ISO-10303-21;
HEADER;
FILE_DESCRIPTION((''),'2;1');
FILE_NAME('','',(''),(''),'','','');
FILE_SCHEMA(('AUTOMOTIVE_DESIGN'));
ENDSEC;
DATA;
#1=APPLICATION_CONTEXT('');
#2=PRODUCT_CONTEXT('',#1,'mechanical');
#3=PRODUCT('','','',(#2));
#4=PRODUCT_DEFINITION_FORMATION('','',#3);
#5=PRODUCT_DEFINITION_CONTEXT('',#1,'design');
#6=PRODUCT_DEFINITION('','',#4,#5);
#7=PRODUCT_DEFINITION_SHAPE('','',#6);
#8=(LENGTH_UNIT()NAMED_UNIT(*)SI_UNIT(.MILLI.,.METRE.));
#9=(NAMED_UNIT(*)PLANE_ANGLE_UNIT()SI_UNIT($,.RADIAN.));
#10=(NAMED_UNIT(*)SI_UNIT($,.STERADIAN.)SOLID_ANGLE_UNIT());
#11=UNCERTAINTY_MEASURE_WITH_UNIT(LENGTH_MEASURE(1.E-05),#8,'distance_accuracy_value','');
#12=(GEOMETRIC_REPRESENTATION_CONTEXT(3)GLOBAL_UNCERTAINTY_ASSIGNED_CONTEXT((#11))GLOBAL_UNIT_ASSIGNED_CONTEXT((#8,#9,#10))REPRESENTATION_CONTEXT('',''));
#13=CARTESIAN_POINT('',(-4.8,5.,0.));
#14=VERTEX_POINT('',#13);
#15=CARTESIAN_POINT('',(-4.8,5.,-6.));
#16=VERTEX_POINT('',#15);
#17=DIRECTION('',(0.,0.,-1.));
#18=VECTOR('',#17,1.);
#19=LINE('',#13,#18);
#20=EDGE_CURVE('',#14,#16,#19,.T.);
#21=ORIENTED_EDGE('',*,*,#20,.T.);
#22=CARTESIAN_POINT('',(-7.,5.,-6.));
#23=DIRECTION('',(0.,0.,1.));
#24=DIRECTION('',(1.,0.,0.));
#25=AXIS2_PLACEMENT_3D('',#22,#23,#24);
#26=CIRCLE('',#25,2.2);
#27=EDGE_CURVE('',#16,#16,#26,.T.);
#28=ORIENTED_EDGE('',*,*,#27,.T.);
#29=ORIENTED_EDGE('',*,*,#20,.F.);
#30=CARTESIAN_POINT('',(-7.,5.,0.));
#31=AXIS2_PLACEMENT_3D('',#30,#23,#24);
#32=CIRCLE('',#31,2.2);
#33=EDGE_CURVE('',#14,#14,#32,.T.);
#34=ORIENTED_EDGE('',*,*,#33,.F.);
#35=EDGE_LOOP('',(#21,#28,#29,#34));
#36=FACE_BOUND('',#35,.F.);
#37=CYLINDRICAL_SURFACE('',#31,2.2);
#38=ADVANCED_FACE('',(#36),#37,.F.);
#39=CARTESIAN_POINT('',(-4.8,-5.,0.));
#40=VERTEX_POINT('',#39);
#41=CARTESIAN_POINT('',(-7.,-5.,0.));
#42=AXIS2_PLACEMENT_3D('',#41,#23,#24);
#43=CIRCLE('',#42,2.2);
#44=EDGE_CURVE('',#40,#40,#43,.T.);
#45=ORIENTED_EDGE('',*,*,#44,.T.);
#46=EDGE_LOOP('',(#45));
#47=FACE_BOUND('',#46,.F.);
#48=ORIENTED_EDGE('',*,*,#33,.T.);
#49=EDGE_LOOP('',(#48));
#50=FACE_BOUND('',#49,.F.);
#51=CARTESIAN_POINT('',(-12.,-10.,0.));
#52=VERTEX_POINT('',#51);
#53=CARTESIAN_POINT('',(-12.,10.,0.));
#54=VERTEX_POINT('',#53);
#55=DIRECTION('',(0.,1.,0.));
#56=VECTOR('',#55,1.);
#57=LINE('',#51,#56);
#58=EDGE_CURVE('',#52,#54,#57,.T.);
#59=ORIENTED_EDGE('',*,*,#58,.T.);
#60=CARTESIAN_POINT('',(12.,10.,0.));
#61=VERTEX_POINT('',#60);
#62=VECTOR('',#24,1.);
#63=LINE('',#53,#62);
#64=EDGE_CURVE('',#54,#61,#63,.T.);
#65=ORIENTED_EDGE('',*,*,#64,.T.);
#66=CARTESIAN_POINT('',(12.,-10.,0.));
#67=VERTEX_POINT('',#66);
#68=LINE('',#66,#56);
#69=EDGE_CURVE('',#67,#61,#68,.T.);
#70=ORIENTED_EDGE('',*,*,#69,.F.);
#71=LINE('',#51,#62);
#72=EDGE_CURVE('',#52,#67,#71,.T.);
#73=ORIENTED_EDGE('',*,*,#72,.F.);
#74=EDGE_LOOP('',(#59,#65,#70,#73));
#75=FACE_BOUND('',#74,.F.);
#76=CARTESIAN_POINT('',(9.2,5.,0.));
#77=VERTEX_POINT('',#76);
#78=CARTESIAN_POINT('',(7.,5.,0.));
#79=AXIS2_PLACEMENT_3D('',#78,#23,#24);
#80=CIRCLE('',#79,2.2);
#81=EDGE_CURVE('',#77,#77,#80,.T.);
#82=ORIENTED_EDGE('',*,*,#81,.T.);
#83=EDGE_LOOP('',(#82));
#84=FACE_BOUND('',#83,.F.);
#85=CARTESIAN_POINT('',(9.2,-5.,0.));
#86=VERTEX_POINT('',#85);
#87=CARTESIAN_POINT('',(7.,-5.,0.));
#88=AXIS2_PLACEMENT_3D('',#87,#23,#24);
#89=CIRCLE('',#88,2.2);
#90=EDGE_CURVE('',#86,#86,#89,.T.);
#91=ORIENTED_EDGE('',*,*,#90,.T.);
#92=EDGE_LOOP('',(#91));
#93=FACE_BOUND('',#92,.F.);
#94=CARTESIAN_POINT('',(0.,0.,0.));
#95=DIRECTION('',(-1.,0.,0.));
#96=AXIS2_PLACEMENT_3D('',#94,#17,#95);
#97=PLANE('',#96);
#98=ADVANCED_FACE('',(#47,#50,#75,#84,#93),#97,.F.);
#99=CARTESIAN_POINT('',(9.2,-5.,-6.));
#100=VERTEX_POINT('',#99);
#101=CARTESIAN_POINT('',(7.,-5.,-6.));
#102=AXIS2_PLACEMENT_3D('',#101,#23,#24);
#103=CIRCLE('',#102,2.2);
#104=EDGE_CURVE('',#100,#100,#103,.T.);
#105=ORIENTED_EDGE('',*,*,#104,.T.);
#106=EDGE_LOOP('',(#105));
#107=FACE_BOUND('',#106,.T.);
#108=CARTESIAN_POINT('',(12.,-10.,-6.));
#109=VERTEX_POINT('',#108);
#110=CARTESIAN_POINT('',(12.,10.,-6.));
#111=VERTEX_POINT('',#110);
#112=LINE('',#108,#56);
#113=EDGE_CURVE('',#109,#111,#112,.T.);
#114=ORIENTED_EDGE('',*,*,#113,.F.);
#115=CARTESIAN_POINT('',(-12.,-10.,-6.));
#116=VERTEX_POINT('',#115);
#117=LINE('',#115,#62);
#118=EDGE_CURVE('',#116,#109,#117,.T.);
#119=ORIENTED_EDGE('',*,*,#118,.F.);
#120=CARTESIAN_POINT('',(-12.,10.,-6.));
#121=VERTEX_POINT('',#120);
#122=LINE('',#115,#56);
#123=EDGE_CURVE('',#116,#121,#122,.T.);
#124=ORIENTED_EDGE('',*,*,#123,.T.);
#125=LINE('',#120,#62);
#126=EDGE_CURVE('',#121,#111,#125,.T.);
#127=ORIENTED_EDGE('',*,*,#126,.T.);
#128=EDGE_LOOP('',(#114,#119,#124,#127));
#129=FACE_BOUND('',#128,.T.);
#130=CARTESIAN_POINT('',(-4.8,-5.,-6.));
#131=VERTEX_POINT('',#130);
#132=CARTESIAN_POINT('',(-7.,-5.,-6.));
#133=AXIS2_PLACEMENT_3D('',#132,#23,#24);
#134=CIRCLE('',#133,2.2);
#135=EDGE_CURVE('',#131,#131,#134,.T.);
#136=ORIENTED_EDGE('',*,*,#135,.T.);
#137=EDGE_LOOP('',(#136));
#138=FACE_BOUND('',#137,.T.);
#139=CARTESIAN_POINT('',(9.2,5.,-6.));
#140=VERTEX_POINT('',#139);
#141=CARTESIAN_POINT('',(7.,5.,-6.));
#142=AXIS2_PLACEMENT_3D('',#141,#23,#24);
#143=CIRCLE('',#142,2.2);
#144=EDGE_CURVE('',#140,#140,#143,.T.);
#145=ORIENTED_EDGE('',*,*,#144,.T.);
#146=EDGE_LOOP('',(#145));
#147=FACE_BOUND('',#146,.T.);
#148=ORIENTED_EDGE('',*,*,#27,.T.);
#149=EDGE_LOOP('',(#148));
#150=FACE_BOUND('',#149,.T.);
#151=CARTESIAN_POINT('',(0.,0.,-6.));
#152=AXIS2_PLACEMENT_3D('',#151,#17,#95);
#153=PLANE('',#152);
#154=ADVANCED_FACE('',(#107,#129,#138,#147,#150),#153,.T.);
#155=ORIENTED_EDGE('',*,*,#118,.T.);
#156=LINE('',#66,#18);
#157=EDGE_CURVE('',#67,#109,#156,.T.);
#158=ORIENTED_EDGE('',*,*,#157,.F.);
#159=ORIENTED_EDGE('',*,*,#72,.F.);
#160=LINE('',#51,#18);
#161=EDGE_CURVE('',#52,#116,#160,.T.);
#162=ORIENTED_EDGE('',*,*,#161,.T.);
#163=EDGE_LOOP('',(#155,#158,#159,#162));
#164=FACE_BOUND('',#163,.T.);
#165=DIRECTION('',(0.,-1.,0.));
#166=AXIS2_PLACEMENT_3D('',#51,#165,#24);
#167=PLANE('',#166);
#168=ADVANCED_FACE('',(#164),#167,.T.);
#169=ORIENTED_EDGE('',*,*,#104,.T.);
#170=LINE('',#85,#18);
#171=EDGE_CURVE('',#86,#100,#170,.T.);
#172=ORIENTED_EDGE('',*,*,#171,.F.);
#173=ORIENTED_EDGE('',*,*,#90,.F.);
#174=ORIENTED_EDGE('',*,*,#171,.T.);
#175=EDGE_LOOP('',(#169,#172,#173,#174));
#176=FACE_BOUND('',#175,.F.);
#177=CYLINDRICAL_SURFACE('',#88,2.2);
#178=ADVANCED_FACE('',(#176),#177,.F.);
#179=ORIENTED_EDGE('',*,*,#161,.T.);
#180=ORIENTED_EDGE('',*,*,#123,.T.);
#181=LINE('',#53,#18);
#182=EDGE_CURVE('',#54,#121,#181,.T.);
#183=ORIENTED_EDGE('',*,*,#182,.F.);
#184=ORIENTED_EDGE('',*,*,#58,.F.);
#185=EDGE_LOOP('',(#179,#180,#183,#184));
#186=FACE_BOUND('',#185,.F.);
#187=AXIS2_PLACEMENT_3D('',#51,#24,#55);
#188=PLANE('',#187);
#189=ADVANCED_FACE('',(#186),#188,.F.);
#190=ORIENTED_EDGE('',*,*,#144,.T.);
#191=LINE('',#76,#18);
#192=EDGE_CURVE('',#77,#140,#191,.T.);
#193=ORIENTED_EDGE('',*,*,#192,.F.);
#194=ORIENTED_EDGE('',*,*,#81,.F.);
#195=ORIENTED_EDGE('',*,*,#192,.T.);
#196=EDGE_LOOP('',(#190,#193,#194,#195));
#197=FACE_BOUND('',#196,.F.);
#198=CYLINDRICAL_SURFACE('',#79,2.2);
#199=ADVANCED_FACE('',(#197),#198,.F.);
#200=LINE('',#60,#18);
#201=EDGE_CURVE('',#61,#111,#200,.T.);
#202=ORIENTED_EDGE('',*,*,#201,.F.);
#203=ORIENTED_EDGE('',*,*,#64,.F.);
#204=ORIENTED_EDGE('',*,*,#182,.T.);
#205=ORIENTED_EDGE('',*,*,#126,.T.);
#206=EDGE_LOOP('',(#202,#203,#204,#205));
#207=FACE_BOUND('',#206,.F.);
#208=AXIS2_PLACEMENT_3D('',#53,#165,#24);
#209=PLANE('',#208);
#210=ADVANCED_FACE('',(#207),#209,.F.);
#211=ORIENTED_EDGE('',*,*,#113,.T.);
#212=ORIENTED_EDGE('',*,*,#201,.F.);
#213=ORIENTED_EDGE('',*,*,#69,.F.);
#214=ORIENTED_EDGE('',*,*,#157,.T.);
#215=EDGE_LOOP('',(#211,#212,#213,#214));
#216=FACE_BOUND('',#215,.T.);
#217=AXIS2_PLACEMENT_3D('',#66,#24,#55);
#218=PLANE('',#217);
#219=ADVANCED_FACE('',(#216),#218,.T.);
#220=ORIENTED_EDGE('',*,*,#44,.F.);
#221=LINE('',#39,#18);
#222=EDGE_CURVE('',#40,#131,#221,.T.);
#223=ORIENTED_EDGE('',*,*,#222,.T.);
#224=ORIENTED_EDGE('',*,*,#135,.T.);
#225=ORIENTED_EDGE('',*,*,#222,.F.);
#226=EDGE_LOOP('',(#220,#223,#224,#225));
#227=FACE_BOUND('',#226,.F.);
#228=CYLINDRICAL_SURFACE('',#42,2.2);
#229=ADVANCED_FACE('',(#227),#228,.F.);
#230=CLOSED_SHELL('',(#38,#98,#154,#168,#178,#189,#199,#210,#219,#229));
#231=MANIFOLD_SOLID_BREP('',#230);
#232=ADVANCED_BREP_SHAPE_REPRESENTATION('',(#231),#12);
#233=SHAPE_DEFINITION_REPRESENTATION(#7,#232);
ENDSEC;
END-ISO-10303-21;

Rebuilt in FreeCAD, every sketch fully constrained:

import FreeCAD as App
import Part
import Sketcher

V = App.Vector
Q = App.Units.Quantity


def add_polygon(sketch, points):
    """Adds a closed chain of lines whose ends are joined by coincident constraints."""
    first, n = sketch.GeometryCount, len(points)
    for a, b in zip(points, points[1:] + points[:1]):
        sketch.addGeometry(Part.LineSegment(App.Vector(*a, 0), App.Vector(*b, 0)), False)
    for i in range(n):
        sketch.addConstraint(Sketcher.Constraint("Coincident", first + i, 2, first + (i + 1) % n, 1))

doc = App.newDocument("Part")
body = doc.addObject("PartDesign::Body", "Body")

# Sketch on XY plane
sketch1 = doc.addObject("Sketcher::SketchObject", "Sketch")
body.addObject(sketch1)
sketch1.AttachmentSupport = (doc.XY_Plane, [""])
sketch1.MapMode = "FlatFace"
add_polygon(sketch1, [(12, 10), (-12, 10), (-12, -10), (12, -10)])  # lines 0-3
sketch1.addGeometry(Part.Circle(V(-7, -5, 0), V(0, 0, 1), 2.2), False)  # 4
sketch1.addGeometry(Part.Circle(V(7, -5, 0), V(0, 0, 1), 2.2), False)  # 5
sketch1.addGeometry(Part.Circle(V(-7, 5, 0), V(0, 0, 1), 2.2), False)  # 6
sketch1.addGeometry(Part.Circle(V(7, 5, 0), V(0, 0, 1), 2.2), False)  # 7
sketch1.addConstraint([
    Sketcher.Constraint("Horizontal", 0),
    Sketcher.Constraint("Vertical", 1),
    Sketcher.Constraint("Horizontal", 2),
    Sketcher.Constraint("Vertical", 3),
    Sketcher.Constraint("Equal", 4, 5),
    Sketcher.Constraint("Equal", 5, 6),
    Sketcher.Constraint("Equal", 6, 7),
    Sketcher.Constraint("Symmetric", 5, 3, 6, 3, -1, 1),
    Sketcher.Constraint("Symmetric", 4, 3, 7, 3, -1, 1),
    Sketcher.Constraint("Symmetric", 0, 2, 2, 2, -1, 1),
    Sketcher.Constraint("Symmetric", 4, 3, 5, 3, -2),
    Sketcher.Constraint("Diameter", 4, Q("4.4 mm")),
    Sketcher.Constraint("DistanceX", 0, 2, 0, 1, Q("24 mm")),
    Sketcher.Constraint("DistanceY", 1, 2, 1, 1, Q("20 mm")),
    Sketcher.Constraint("DistanceX", 4, 3, -1, 1, Q("7 mm")),
    Sketcher.Constraint("DistanceY", 4, 3, -1, 1, Q("5 mm")),
])
pad1 = doc.addObject("PartDesign::Pad", "Pad")
body.addObject(pad1)
pad1.Profile = sketch1
pad1.Length = 6
pad1.Reversed = True

doc.recompute()
